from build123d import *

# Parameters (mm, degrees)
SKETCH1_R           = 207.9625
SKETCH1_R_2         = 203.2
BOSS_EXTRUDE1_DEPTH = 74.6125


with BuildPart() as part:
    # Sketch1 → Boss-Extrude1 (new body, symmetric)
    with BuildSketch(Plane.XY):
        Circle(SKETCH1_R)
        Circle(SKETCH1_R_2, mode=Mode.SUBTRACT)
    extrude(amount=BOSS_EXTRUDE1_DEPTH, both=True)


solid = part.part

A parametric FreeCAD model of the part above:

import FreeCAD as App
import Part
import Sketcher
Q = App.Units.Quantity

doc = App.newDocument("Part")
body = doc.addObject("PartDesign::Body", "Body")

sketch1 = body.newObject("Sketcher::SketchObject", "Sketch")
sketch1.AttachmentSupport = (doc.getObject("XY_Plane"), [""])
sketch1.MapMode = "FlatFace"
sketch1.addGeometry([
    Part.Circle(App.Vector(0, 0, 0), App.Vector(0, 0, 1), 207.9625),
    Part.Circle(App.Vector(0, 0, 0), App.Vector(0, 0, 1), 203.2),
], False)
sketch1.addConstraint([
    Sketcher.Constraint("Coincident", 0, 3, -1, 1),
    Sketcher.Constraint("Coincident", 1, 3, -1, 1),
    Sketcher.Constraint("Diameter", 1, Q("16 in")),
    Sketcher.Constraint("Diameter", 0, Q("16.375 in")),
])
pad1 = body.newObject("PartDesign::Pad", "Pad")
pad1.Profile = sketch1
pad1.Length = Q("5.875 in")
pad1.Midplane = True

doc.recompute()
